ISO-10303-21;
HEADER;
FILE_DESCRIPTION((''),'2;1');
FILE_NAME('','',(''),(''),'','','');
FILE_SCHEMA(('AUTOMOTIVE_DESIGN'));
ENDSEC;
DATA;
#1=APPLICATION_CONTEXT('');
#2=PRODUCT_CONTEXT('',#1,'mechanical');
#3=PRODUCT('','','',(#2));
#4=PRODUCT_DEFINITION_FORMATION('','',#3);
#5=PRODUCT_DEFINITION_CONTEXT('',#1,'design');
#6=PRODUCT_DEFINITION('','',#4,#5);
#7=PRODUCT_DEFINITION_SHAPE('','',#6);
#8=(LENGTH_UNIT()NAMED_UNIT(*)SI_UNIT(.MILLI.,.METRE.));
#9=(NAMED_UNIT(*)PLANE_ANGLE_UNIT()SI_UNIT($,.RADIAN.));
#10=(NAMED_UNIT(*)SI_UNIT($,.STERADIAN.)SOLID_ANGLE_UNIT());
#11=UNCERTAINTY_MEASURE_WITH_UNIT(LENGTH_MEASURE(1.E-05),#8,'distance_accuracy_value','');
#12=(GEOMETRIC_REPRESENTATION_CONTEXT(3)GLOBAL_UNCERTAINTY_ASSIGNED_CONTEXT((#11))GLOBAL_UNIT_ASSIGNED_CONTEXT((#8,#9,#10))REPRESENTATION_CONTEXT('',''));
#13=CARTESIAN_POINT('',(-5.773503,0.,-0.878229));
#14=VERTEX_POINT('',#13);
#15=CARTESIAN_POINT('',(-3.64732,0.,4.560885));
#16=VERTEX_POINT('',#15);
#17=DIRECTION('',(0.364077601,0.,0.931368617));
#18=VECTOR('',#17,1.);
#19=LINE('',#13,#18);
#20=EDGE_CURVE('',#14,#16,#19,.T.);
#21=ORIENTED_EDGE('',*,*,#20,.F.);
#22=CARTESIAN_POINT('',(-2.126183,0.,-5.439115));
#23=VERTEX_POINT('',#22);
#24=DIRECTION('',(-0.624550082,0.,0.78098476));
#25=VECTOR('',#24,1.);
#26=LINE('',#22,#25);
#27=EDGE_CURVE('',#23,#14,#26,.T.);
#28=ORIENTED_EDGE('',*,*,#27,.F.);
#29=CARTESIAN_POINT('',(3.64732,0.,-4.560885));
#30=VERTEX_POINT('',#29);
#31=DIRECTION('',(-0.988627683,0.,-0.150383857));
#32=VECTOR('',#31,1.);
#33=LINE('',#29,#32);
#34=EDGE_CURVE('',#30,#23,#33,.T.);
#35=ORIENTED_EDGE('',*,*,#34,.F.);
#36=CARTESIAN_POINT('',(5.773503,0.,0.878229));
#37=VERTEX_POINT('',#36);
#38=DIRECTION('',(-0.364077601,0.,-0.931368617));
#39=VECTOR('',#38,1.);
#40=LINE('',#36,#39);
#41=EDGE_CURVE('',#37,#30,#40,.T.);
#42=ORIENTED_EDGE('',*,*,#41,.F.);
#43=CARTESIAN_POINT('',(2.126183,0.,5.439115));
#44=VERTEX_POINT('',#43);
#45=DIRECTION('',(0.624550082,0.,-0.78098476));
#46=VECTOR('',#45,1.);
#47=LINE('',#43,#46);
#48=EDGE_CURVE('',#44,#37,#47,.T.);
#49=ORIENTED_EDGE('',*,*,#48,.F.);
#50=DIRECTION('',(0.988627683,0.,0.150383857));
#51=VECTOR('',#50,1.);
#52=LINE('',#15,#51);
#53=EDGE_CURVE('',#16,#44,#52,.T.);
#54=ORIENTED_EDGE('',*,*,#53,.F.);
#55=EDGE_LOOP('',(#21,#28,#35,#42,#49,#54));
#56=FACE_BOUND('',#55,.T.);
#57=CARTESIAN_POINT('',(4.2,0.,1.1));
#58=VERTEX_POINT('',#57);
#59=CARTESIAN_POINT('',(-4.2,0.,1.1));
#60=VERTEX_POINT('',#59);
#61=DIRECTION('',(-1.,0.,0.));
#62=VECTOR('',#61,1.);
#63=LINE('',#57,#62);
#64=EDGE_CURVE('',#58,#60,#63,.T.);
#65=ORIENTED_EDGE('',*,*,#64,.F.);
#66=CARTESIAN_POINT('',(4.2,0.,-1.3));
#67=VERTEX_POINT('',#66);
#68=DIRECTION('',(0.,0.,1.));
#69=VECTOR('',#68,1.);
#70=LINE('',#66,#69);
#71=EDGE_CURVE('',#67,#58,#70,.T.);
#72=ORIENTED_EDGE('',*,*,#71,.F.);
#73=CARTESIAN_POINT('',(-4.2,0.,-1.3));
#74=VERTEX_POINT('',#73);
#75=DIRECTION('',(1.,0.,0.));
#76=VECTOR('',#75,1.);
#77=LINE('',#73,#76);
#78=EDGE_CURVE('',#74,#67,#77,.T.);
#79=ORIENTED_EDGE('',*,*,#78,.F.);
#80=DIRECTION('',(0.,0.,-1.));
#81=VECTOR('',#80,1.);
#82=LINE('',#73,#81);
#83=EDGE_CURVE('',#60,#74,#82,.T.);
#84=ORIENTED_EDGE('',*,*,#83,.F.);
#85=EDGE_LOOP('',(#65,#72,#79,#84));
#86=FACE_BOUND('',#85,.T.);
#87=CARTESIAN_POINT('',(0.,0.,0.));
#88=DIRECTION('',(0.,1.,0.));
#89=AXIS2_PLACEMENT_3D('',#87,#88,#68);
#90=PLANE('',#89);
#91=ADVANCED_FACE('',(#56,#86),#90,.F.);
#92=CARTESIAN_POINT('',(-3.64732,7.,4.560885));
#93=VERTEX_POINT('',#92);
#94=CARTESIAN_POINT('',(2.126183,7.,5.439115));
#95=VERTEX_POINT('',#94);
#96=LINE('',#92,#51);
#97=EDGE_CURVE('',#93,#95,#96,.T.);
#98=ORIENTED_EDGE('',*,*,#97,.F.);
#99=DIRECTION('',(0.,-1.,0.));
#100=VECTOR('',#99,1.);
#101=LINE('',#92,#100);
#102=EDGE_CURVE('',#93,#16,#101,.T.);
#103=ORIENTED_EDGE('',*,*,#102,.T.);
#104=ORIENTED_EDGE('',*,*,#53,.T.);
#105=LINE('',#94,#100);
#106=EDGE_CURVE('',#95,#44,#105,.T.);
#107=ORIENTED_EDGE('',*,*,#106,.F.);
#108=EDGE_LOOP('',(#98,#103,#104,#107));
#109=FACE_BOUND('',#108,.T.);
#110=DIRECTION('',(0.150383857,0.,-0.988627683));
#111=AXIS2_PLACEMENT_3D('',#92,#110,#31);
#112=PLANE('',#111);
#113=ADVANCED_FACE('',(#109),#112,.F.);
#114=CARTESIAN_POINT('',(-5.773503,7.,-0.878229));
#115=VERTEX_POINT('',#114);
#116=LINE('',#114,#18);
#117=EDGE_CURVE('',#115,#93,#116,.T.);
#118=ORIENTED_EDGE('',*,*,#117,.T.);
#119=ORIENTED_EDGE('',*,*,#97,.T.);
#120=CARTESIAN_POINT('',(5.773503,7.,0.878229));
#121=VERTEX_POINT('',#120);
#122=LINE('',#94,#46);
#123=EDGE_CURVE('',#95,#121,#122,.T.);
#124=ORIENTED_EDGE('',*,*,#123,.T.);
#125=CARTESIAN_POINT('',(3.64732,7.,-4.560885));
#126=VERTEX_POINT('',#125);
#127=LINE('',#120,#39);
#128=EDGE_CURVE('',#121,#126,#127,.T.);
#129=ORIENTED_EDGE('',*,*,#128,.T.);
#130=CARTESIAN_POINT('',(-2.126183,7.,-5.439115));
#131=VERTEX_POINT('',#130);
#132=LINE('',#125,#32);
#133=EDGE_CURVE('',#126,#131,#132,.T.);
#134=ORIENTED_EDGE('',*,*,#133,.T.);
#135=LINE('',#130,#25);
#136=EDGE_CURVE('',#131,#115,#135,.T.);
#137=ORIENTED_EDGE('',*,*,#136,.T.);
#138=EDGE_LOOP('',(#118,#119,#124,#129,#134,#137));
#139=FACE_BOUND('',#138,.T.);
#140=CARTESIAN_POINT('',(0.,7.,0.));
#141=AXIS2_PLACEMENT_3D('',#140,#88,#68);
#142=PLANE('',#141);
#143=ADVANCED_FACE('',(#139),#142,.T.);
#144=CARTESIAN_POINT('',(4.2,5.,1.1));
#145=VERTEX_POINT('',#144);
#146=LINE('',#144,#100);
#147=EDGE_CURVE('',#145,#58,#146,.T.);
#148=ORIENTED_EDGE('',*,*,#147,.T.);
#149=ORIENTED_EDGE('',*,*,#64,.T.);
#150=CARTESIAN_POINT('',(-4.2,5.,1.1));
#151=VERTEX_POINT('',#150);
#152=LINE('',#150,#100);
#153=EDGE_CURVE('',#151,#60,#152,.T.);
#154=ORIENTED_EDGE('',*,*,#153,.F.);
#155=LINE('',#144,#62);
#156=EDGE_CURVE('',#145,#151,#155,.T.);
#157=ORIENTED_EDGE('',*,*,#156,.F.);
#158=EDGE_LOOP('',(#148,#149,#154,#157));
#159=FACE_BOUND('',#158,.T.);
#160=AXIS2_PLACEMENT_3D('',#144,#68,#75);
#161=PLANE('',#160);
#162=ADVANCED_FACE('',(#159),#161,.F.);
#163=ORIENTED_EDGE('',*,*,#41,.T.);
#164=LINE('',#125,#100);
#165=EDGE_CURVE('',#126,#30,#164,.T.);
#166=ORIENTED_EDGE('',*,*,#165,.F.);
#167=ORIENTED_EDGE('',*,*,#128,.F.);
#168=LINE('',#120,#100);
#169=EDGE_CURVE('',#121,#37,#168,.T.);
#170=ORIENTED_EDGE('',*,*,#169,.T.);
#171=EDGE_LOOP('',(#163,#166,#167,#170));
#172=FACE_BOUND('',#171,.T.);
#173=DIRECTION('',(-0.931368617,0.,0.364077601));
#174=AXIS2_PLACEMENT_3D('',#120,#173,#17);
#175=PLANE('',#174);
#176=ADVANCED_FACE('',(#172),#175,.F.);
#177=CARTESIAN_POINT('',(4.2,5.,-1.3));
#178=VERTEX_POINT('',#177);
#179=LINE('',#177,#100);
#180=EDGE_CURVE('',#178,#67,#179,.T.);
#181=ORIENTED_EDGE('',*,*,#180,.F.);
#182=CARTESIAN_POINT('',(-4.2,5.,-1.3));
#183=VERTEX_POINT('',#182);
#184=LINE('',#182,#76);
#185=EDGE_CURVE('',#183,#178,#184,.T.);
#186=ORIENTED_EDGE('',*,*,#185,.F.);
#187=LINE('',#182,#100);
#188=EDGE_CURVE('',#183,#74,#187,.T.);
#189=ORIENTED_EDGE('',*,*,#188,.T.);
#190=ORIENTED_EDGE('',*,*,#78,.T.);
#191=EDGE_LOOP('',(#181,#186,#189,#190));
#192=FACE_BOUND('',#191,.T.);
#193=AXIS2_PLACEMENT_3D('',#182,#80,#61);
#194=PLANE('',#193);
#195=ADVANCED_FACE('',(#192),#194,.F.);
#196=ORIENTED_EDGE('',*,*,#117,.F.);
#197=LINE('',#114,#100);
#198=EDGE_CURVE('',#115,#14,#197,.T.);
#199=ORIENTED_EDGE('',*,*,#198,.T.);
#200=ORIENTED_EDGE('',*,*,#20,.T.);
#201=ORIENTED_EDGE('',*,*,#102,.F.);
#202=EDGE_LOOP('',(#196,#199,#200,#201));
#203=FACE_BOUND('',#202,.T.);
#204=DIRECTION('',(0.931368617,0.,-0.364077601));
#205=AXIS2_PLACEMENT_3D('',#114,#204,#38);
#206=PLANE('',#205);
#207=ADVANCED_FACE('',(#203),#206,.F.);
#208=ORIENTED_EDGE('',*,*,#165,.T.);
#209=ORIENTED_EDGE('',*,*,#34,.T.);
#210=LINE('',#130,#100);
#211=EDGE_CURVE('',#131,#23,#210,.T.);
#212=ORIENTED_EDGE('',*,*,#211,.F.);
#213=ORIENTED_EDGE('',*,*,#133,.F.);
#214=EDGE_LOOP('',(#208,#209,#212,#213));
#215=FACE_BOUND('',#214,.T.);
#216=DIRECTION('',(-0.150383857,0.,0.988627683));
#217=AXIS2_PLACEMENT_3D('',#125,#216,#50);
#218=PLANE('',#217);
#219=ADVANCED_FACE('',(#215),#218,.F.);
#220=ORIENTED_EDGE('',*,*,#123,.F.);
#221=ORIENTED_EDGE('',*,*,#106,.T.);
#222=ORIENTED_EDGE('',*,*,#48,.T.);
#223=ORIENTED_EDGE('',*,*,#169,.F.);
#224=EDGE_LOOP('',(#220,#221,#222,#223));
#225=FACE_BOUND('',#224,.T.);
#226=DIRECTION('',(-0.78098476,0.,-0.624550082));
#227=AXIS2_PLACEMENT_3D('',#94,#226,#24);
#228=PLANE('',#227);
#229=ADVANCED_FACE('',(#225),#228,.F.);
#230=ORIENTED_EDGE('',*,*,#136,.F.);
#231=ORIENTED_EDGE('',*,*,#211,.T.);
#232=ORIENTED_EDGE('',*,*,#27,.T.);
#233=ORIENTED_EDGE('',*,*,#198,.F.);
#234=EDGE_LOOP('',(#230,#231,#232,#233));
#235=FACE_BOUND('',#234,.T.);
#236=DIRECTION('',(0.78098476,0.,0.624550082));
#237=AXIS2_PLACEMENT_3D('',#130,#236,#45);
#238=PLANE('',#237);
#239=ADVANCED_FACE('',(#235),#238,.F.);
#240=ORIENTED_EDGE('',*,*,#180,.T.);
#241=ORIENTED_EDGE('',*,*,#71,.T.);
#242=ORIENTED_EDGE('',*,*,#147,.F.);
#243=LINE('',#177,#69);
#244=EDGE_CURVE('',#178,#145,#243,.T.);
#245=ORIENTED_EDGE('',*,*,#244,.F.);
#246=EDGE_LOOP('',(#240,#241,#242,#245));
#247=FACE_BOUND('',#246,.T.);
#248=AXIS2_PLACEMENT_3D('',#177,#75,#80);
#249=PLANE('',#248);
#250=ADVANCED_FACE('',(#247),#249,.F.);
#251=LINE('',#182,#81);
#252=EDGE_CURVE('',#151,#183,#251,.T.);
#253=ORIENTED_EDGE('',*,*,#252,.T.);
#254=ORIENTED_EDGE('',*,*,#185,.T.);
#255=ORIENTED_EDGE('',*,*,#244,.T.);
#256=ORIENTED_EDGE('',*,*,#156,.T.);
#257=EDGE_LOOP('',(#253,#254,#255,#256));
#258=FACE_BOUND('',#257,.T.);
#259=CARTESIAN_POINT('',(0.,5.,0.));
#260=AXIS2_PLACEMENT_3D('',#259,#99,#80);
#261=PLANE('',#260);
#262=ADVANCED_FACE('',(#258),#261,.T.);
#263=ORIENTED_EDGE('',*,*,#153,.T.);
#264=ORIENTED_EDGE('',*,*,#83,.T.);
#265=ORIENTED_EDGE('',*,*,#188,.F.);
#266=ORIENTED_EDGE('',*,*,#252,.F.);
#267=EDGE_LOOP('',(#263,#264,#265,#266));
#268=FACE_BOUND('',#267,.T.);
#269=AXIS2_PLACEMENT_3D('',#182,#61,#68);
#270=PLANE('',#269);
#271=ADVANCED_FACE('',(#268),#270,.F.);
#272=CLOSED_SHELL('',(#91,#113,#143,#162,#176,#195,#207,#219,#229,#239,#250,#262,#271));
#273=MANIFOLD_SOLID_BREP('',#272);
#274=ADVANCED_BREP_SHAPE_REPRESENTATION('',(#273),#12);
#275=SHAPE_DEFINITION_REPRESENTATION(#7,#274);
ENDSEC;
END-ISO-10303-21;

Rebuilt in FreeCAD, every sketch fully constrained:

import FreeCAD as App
import Part
import Sketcher

V = App.Vector
Q = App.Units.Quantity


def add_polygon(sketch, points):
    """Adds a closed chain of lines whose ends are joined by coincident constraints."""
    first, n = sketch.GeometryCount, len(points)
    for a, b in zip(points, points[1:] + points[:1]):
        sketch.addGeometry(Part.LineSegment(App.Vector(*a, 0), App.Vector(*b, 0)), False)
    for i in range(n):
        sketch.addConstraint(Sketcher.Constraint("Coincident", first + i, 2, first + (i + 1) % n, 1))

doc = App.newDocument("Part")
body = doc.addObject("PartDesign::Body", "Body")

# Sketch on XZ plane
sketch1 = doc.addObject("Sketcher::SketchObject", "Sketch")
body.addObject(sketch1)
sketch1.AttachmentSupport = (doc.XZ_Plane, [""])
sketch1.MapMode = "FlatFace"
add_polygon(sketch1, [(4, -5), (-2, -5), (-6, -1), (-4, 5), (2, 5), (6, 1)])  # lines 0-5
sketch1.addConstraint(Sketcher.Constraint("Symmetric", 0, 2, 3, 2, -1, 1))
sketch1.addConstraint(Sketcher.Constraint("Symmetric", 1, 2, 4, 2, -1, 1))
sketch1.addConstraint(Sketcher.Constraint("Symmetric", 2, 2, 5, 2, -1, 1))
sketch1.addConstraint(Sketcher.Constraint("Equal", 0, 1))
sketch1.addConstraint(Sketcher.Constraint("Equal", 1, 2))
sketch1.addConstraint(Sketcher.Constraint("DistanceY", 0, 2, 2, 2, Q("10 mm")))
sketch1.addConstraint(Sketcher.Constraint("DistanceY", 1, 2, -1, 1, Q("0.878229 mm")))
sketch1.addConstraint(Sketcher.Constraint("DistanceX", 2, 2, -1, 1, Q("3.64732 mm")))
sketch1.addConstraint(Sketcher.Constraint("DistanceX", 1, 2, 0, 2, Q("3.64732 mm")))
pad1 = doc.addObject("PartDesign::Pad", "Pad")
body.addObject(pad1)
pad1.Profile = sketch1
pad1.Length = 7
pad1.Reversed = True

# Sketch on XZ plane
sketch2 = doc.addObject("Sketcher::SketchObject", "Sketch001")
body.addObject(sketch2)
sketch2.AttachmentSupport = (doc.XZ_Plane, [""])
sketch2.MapMode = "FlatFace"
add_polygon(sketch2, [(4.2, -1.3), (4.2, 1.1), (-4.2, 1.1), (-4.2, -1.3)])  # lines 0-3
sketch2.addConstraint(Sketcher.Constraint("Vertical", 0))
sketch2.addConstraint(Sketcher.Constraint("Horizontal", 1))
sketch2.addConstraint(Sketcher.Constraint("Vertical", 2))
sketch2.addConstraint(Sketcher.Constraint("Horizontal", 3))
sketch2.addConstraint(Sketcher.Constraint("DistanceX", 1, 2, 1, 1, Q("8.4 mm")))
sketch2.addConstraint(Sketcher.Constraint("DistanceY", 0, 1, 0, 2, Q("2.4 mm")))
sketch2.addConstraint(Sketcher.Constraint("DistanceX", -1, 1, 0, 2, Q("4.2 mm")))
sketch2.addConstraint(Sketcher.Constraint("DistanceY", -1, 1, 0, 2, Q("1.1 mm")))
pocket1 = doc.addObject("PartDesign::Pocket", "Pocket")
body.addObject(pocket1)
pocket1.Profile = sketch2
pocket1.Length = 5

doc.recompute()
